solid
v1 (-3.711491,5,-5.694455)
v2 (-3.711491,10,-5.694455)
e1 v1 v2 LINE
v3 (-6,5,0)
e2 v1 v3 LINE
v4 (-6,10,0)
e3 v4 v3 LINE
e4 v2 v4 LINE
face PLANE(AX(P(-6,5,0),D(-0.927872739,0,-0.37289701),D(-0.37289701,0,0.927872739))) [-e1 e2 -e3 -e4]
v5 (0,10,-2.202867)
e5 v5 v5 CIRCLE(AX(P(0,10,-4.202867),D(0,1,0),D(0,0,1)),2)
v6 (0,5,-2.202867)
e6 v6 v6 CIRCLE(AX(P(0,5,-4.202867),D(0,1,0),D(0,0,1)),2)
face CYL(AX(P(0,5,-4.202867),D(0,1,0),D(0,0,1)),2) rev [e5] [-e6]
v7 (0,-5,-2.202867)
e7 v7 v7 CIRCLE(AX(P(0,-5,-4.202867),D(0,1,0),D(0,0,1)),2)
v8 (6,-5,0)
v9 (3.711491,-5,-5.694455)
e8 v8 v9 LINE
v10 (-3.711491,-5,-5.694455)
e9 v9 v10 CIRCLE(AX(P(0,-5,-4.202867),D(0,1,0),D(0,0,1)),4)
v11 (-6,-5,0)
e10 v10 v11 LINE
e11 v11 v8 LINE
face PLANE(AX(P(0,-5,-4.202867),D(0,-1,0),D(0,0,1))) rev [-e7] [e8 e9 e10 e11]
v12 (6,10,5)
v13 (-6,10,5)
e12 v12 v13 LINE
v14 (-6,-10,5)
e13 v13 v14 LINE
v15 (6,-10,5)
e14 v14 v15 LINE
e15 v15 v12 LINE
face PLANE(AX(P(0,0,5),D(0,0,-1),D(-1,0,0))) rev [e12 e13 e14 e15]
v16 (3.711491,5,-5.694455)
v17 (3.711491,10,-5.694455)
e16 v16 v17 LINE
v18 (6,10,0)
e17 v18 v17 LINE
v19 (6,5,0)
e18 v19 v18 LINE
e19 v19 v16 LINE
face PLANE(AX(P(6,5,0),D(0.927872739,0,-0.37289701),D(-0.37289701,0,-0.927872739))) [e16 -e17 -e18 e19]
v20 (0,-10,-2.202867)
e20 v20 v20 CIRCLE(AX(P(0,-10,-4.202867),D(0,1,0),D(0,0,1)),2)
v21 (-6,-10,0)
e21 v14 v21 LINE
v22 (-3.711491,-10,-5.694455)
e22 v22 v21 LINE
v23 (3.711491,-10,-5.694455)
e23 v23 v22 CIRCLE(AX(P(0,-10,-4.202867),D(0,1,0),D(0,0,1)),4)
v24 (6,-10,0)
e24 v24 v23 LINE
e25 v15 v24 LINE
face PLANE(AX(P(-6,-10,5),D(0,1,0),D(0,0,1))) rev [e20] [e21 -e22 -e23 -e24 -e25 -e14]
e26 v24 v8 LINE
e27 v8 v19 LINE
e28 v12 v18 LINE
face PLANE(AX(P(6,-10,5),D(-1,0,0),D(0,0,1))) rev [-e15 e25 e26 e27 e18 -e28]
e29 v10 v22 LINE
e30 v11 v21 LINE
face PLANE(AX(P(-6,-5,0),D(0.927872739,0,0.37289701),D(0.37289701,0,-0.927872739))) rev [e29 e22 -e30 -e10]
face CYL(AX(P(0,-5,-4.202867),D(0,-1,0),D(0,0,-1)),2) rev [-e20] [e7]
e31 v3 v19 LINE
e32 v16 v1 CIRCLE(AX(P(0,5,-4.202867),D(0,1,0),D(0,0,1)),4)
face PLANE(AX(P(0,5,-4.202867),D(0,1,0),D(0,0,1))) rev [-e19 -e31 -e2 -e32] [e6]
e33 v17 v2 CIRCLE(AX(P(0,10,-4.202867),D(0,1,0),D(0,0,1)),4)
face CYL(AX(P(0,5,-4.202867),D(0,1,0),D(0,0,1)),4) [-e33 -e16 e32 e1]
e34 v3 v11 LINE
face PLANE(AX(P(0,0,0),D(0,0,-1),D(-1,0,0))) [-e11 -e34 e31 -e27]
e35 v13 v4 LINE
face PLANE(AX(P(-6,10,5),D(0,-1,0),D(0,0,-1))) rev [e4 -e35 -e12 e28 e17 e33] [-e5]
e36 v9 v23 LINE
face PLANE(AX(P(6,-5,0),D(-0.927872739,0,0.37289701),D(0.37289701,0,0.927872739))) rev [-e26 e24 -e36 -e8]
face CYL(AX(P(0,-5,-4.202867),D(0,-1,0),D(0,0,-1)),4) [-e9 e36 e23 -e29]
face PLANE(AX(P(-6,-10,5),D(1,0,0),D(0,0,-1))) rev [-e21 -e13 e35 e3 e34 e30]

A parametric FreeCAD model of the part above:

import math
import FreeCAD as App
import Part
import Sketcher

doc = App.newDocument("Part")
body = doc.addObject("PartDesign::Body", "Body")

sketch1 = doc.addObject("Sketcher::SketchObject", "Sketch")
body.addObject(sketch1)
sketch1.AttachmentSupport = (doc.XY_Plane, [""])
sketch1.MapMode = "FlatFace"
sketch1.addGeometry(Part.LineSegment(App.Vector(-6, 10, 0), App.Vector(-6, -10, 0)), False)
sketch1.addGeometry(Part.LineSegment(App.Vector(-6, -10, 0), App.Vector(6, -10, 0)), False)
sketch1.addGeometry(Part.LineSegment(App.Vector(6, -10, 0), App.Vector(6, 10, 0)), False)
sketch1.addGeometry(Part.LineSegment(App.Vector(6, 10, 0), App.Vector(-6, 10, 0)), False)
sketch1.addConstraint(Sketcher.Constraint("Coincident", 0, 2, 1, 1))
sketch1.addConstraint(Sketcher.Constraint("Coincident", 1, 2, 2, 1))
sketch1.addConstraint(Sketcher.Constraint("Coincident", 2, 2, 3, 1))
sketch1.addConstraint(Sketcher.Constraint("Coincident", 3, 2, 0, 1))
sketch1.addConstraint(Sketcher.Constraint("Vertical", 0))
sketch1.addConstraint(Sketcher.Constraint("Horizontal", 1))
sketch1.addConstraint(Sketcher.Constraint("Vertical", 2))
sketch1.addConstraint(Sketcher.Constraint("Horizontal", 3))
sketch1.addConstraint(Sketcher.Constraint("Symmetric", 0, 2, 2, 2, -1, 1))
sketch1.addConstraint(Sketcher.Constraint("DistanceX", 1, 1, 1, 2, 12.0))
sketch1.addConstraint(Sketcher.Constraint("DistanceY", 0, 2, 0, 1, 20.0))
pad1 = doc.addObject("PartDesign::Pad", "Pad")
body.addObject(pad1)
pad1.Profile = sketch1
pad1.Length = 5

sketch2 = doc.addObject("Sketcher::SketchObject", "Sketch001")
body.addObject(sketch2)
sketch2.AttachmentSupport = (doc.XZ_Plane, [""])
sketch2.MapMode = "FlatFace"
sketch2.AttachmentOffset = App.Placement(App.Vector(0, 0, -10), App.Rotation())
sketch2.addGeometry(Part.LineSegment(App.Vector(-3.711491, -5.694455, 0), App.Vector(-6, 0, 0)), False)
sketch2.addGeometry(Part.LineSegment(App.Vector(-6, 0, 0), App.Vector(6, 0, 0)), False)
sketch2.addGeometry(Part.LineSegment(App.Vector(6, 0, 0), App.Vector(3.711491, -5.694455, 0)), False)
sketch2.addGeometry(Part.ArcOfCircle(Part.Circle(App.Vector(0, -4.202867, 0), App.Vector(0, 0, 1), 4), math.radians(-158.105605), math.radians(-21.894395)), False)
sketch2.addGeometry(Part.Circle(App.Vector(0, -4.202867, 0), App.Vector(0, 0, 1), 2), False)
sketch2.addConstraint(Sketcher.Constraint("Coincident", 0, 2, 1, 1))
sketch2.addConstraint(Sketcher.Constraint("Coincident", 1, 2, 2, 1))
sketch2.addConstraint(Sketcher.Constraint("Tangent", 2, 2, 3, 2))
sketch2.addConstraint(Sketcher.Constraint("Tangent", 3, 1, 0, 1))
sketch2.addConstraint(Sketcher.Constraint("Horizontal", 1))
sketch2.addConstraint(Sketcher.Constraint("Coincident", 4, 3, 3, 3))
sketch2.addConstraint(Sketcher.Constraint("Symmetric", 0, 2, 1, 2, -1, 1))
sketch2.addConstraint(Sketcher.Constraint("PointOnObject", 3, 3, -2))
sketch2.addConstraint(Sketcher.Constraint("Diameter", 4, 4.0))
sketch2.addConstraint(Sketcher.Constraint("Radius", 3, 4.0))
sketch2.addConstraint(Sketcher.Constraint("DistanceX", 1, 1, 1, 2, 12.0))
sketch2.addConstraint(Sketcher.Constraint("DistanceX", -1, 1, 2, 2, 3.711491))
pad2 = doc.addObject("PartDesign::Pad", "Pad001")
body.addObject(pad2)
pad2.Profile = sketch2
pad2.Length = 5
doc.recompute()

mirrored = doc.addObject("PartDesign::Mirrored", "Mirrored")
body.addObject(mirrored)
mirrored.Originals = [pad2]
mirrored.MirrorPlane = (doc.XZ_Plane, [""])
body.Tip = mirrored

doc.recompute()
